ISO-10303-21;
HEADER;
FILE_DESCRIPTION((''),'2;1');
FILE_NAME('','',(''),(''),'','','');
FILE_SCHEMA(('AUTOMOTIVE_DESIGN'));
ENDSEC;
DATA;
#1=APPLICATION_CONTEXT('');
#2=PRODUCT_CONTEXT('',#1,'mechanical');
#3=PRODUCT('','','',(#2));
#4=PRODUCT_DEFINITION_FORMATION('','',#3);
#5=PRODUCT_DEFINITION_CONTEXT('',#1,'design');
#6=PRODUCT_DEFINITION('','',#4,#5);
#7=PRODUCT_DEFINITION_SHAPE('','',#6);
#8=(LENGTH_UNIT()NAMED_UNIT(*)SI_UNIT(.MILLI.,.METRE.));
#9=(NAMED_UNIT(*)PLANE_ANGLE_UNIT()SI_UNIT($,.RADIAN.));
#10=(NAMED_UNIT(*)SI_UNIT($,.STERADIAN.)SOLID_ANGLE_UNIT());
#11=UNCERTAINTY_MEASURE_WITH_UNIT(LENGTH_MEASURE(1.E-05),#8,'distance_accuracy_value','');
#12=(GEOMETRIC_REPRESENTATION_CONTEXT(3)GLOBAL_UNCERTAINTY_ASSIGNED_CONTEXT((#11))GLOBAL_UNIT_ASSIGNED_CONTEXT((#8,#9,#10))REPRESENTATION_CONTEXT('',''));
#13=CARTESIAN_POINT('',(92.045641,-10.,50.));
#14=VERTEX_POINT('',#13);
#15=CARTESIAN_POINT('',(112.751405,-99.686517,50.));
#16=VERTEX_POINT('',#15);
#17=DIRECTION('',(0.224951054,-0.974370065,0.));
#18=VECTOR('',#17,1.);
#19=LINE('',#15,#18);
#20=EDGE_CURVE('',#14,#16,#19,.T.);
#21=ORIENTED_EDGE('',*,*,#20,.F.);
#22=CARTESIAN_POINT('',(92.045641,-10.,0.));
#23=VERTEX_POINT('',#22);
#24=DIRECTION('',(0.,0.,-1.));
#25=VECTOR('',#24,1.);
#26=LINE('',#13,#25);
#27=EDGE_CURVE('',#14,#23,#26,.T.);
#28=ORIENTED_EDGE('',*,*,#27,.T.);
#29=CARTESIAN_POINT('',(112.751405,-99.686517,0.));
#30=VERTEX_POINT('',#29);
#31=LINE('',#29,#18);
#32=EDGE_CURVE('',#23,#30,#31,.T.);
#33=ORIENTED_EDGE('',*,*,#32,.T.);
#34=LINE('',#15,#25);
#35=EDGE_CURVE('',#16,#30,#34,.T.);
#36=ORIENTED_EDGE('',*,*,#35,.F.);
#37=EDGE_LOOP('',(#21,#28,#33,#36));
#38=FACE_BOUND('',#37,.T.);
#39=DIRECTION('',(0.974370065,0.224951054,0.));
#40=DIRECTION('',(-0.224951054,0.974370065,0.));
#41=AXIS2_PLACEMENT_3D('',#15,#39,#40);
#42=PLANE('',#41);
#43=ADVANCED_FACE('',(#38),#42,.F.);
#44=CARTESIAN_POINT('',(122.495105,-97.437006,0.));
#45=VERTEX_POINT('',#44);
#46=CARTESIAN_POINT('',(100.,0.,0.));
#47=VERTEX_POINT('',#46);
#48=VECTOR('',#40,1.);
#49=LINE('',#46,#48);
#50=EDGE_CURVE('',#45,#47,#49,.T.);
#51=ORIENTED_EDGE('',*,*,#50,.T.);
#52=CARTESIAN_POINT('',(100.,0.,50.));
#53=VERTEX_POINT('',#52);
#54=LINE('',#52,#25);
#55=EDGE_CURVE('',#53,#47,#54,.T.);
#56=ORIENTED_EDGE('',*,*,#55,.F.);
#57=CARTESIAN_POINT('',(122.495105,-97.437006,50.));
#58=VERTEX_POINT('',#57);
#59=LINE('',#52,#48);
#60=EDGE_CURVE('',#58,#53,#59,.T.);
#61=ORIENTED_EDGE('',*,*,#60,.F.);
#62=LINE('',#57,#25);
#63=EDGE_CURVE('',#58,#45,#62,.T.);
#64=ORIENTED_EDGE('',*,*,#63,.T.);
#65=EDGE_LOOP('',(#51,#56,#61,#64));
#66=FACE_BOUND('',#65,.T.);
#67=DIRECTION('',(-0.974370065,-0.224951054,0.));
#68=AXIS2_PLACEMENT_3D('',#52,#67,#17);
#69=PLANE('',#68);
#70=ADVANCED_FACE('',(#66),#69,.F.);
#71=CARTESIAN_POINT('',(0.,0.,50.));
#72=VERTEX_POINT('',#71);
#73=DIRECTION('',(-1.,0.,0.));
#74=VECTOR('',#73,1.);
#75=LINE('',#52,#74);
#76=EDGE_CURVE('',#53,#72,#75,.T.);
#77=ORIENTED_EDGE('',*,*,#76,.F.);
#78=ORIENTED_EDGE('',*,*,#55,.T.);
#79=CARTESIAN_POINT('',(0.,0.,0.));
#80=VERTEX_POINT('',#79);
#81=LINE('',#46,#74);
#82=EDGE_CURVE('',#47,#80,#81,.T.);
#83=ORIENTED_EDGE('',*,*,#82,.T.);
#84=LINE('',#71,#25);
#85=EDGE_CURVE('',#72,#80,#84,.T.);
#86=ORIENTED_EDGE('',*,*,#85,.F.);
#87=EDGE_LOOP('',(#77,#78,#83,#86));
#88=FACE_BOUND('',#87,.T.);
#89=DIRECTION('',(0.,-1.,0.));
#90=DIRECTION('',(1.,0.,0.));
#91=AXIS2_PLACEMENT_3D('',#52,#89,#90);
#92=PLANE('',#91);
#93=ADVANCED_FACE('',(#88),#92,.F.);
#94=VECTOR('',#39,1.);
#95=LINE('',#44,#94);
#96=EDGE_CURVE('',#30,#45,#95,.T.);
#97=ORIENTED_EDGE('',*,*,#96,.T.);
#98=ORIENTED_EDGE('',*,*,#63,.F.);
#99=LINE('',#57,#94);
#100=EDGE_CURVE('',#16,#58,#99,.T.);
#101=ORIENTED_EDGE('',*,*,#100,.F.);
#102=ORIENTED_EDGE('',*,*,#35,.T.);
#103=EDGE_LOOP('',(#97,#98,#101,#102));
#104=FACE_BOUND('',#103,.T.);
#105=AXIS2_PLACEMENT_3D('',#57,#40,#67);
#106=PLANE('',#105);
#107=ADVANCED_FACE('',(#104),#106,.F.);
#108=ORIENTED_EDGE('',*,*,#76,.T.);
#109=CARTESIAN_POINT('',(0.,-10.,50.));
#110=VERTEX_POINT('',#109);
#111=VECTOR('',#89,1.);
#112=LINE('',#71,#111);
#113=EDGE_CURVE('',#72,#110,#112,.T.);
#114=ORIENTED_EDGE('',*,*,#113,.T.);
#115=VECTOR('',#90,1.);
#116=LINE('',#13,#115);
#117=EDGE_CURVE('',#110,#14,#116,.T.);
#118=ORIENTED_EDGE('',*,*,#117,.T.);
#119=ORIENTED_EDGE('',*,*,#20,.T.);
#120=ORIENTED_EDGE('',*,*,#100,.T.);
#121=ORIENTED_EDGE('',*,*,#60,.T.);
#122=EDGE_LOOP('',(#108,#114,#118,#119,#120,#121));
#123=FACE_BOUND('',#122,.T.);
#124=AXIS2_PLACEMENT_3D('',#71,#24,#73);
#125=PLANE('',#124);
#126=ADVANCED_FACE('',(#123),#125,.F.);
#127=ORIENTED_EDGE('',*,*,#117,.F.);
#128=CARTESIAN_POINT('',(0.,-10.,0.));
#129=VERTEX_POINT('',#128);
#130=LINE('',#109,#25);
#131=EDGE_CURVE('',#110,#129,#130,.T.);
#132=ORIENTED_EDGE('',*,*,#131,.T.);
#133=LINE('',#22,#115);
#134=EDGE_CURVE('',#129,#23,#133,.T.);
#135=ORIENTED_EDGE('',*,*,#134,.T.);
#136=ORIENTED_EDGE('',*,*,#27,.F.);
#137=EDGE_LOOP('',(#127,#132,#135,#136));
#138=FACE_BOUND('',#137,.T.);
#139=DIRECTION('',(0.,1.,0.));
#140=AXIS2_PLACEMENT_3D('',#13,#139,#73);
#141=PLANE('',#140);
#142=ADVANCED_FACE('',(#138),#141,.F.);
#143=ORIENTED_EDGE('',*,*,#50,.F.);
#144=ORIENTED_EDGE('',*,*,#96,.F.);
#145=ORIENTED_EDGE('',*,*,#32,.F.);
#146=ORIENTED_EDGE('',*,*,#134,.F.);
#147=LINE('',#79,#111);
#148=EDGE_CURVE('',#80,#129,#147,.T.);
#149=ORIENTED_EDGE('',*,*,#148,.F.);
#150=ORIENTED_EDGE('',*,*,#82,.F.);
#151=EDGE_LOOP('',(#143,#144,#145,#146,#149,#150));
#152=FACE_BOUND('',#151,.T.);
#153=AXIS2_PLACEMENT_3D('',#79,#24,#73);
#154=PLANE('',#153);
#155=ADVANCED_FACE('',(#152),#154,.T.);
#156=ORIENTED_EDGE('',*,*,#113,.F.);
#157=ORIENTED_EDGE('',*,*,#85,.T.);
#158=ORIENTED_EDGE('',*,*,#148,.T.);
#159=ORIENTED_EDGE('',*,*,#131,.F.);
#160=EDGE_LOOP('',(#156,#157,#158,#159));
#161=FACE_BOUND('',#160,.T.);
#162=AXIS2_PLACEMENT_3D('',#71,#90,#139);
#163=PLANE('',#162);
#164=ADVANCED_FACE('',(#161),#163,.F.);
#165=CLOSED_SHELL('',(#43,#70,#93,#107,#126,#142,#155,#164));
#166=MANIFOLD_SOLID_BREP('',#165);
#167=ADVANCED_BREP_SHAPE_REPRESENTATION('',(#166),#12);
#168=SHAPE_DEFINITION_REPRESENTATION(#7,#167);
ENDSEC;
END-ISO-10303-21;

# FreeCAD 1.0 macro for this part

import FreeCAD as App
import Part
import Sketcher
Q = App.Units.Quantity

doc = App.newDocument("Part")
body = doc.addObject("PartDesign::Body", "Body")

sketch1 = body.newObject("Sketcher::SketchObject", "Sketch")
sketch1.AttachmentSupport = (doc.getObject("XY_Plane"), [""])
sketch1.MapMode = "FlatFace"
sketch1.addGeometry([
    Part.LineSegment(App.Vector(100, 0, 0), App.Vector(0, 0, 0)),
    Part.LineSegment(App.Vector(0, 0, 0), App.Vector(0, -10, 0)),
    Part.LineSegment(App.Vector(0, -10, 0), App.Vector(92.045641, -10, 0)),
    Part.LineSegment(App.Vector(92.045641, -10, 0), App.Vector(112.751405, -99.686517, 0)),
    Part.LineSegment(App.Vector(112.751405, -99.686517, 0), App.Vector(122.495105, -97.437006, 0)),
    Part.LineSegment(App.Vector(122.495105, -97.437006, 0), App.Vector(100, 0, 0)),
], False)
sketch1.addConstraint([
    Sketcher.Constraint("Coincident", 0, 2, 1, 1),
    Sketcher.Constraint("Coincident", 1, 2, 2, 1),
    Sketcher.Constraint("Coincident", 2, 2, 3, 1),
    Sketcher.Constraint("Coincident", 3, 2, 4, 1),
    Sketcher.Constraint("Coincident", 4, 2, 5, 1),
    Sketcher.Constraint("Coincident", 5, 2, 0, 1),
    Sketcher.Constraint("Horizontal", 0),
    Sketcher.Constraint("Vertical", 1),
    Sketcher.Constraint("Horizontal", 2),
    Sketcher.Constraint("Coincident", 0, 2, -1, 1),
    Sketcher.Constraint("Perpendicular", 3, 4),
    Sketcher.Constraint("Perpendicular", 4, 5),
    Sketcher.Constraint("DistanceX", 0, 2, 0, 1, Q("100 mm")),
    Sketcher.Constraint("DistanceY", 1, 2, 1, 1, Q("10 mm")),
    Sketcher.Constraint("Angle", 3, Q("-77 deg")),
    Sketcher.Constraint("Distance", 4, Q("10 mm")),
    Sketcher.Constraint("Distance", 5, Q("100 mm")),
])
pad1 = body.newObject("PartDesign::Pad", "Pad")
pad1.Profile = sketch1
pad1.Length = 50

doc.recompute()
